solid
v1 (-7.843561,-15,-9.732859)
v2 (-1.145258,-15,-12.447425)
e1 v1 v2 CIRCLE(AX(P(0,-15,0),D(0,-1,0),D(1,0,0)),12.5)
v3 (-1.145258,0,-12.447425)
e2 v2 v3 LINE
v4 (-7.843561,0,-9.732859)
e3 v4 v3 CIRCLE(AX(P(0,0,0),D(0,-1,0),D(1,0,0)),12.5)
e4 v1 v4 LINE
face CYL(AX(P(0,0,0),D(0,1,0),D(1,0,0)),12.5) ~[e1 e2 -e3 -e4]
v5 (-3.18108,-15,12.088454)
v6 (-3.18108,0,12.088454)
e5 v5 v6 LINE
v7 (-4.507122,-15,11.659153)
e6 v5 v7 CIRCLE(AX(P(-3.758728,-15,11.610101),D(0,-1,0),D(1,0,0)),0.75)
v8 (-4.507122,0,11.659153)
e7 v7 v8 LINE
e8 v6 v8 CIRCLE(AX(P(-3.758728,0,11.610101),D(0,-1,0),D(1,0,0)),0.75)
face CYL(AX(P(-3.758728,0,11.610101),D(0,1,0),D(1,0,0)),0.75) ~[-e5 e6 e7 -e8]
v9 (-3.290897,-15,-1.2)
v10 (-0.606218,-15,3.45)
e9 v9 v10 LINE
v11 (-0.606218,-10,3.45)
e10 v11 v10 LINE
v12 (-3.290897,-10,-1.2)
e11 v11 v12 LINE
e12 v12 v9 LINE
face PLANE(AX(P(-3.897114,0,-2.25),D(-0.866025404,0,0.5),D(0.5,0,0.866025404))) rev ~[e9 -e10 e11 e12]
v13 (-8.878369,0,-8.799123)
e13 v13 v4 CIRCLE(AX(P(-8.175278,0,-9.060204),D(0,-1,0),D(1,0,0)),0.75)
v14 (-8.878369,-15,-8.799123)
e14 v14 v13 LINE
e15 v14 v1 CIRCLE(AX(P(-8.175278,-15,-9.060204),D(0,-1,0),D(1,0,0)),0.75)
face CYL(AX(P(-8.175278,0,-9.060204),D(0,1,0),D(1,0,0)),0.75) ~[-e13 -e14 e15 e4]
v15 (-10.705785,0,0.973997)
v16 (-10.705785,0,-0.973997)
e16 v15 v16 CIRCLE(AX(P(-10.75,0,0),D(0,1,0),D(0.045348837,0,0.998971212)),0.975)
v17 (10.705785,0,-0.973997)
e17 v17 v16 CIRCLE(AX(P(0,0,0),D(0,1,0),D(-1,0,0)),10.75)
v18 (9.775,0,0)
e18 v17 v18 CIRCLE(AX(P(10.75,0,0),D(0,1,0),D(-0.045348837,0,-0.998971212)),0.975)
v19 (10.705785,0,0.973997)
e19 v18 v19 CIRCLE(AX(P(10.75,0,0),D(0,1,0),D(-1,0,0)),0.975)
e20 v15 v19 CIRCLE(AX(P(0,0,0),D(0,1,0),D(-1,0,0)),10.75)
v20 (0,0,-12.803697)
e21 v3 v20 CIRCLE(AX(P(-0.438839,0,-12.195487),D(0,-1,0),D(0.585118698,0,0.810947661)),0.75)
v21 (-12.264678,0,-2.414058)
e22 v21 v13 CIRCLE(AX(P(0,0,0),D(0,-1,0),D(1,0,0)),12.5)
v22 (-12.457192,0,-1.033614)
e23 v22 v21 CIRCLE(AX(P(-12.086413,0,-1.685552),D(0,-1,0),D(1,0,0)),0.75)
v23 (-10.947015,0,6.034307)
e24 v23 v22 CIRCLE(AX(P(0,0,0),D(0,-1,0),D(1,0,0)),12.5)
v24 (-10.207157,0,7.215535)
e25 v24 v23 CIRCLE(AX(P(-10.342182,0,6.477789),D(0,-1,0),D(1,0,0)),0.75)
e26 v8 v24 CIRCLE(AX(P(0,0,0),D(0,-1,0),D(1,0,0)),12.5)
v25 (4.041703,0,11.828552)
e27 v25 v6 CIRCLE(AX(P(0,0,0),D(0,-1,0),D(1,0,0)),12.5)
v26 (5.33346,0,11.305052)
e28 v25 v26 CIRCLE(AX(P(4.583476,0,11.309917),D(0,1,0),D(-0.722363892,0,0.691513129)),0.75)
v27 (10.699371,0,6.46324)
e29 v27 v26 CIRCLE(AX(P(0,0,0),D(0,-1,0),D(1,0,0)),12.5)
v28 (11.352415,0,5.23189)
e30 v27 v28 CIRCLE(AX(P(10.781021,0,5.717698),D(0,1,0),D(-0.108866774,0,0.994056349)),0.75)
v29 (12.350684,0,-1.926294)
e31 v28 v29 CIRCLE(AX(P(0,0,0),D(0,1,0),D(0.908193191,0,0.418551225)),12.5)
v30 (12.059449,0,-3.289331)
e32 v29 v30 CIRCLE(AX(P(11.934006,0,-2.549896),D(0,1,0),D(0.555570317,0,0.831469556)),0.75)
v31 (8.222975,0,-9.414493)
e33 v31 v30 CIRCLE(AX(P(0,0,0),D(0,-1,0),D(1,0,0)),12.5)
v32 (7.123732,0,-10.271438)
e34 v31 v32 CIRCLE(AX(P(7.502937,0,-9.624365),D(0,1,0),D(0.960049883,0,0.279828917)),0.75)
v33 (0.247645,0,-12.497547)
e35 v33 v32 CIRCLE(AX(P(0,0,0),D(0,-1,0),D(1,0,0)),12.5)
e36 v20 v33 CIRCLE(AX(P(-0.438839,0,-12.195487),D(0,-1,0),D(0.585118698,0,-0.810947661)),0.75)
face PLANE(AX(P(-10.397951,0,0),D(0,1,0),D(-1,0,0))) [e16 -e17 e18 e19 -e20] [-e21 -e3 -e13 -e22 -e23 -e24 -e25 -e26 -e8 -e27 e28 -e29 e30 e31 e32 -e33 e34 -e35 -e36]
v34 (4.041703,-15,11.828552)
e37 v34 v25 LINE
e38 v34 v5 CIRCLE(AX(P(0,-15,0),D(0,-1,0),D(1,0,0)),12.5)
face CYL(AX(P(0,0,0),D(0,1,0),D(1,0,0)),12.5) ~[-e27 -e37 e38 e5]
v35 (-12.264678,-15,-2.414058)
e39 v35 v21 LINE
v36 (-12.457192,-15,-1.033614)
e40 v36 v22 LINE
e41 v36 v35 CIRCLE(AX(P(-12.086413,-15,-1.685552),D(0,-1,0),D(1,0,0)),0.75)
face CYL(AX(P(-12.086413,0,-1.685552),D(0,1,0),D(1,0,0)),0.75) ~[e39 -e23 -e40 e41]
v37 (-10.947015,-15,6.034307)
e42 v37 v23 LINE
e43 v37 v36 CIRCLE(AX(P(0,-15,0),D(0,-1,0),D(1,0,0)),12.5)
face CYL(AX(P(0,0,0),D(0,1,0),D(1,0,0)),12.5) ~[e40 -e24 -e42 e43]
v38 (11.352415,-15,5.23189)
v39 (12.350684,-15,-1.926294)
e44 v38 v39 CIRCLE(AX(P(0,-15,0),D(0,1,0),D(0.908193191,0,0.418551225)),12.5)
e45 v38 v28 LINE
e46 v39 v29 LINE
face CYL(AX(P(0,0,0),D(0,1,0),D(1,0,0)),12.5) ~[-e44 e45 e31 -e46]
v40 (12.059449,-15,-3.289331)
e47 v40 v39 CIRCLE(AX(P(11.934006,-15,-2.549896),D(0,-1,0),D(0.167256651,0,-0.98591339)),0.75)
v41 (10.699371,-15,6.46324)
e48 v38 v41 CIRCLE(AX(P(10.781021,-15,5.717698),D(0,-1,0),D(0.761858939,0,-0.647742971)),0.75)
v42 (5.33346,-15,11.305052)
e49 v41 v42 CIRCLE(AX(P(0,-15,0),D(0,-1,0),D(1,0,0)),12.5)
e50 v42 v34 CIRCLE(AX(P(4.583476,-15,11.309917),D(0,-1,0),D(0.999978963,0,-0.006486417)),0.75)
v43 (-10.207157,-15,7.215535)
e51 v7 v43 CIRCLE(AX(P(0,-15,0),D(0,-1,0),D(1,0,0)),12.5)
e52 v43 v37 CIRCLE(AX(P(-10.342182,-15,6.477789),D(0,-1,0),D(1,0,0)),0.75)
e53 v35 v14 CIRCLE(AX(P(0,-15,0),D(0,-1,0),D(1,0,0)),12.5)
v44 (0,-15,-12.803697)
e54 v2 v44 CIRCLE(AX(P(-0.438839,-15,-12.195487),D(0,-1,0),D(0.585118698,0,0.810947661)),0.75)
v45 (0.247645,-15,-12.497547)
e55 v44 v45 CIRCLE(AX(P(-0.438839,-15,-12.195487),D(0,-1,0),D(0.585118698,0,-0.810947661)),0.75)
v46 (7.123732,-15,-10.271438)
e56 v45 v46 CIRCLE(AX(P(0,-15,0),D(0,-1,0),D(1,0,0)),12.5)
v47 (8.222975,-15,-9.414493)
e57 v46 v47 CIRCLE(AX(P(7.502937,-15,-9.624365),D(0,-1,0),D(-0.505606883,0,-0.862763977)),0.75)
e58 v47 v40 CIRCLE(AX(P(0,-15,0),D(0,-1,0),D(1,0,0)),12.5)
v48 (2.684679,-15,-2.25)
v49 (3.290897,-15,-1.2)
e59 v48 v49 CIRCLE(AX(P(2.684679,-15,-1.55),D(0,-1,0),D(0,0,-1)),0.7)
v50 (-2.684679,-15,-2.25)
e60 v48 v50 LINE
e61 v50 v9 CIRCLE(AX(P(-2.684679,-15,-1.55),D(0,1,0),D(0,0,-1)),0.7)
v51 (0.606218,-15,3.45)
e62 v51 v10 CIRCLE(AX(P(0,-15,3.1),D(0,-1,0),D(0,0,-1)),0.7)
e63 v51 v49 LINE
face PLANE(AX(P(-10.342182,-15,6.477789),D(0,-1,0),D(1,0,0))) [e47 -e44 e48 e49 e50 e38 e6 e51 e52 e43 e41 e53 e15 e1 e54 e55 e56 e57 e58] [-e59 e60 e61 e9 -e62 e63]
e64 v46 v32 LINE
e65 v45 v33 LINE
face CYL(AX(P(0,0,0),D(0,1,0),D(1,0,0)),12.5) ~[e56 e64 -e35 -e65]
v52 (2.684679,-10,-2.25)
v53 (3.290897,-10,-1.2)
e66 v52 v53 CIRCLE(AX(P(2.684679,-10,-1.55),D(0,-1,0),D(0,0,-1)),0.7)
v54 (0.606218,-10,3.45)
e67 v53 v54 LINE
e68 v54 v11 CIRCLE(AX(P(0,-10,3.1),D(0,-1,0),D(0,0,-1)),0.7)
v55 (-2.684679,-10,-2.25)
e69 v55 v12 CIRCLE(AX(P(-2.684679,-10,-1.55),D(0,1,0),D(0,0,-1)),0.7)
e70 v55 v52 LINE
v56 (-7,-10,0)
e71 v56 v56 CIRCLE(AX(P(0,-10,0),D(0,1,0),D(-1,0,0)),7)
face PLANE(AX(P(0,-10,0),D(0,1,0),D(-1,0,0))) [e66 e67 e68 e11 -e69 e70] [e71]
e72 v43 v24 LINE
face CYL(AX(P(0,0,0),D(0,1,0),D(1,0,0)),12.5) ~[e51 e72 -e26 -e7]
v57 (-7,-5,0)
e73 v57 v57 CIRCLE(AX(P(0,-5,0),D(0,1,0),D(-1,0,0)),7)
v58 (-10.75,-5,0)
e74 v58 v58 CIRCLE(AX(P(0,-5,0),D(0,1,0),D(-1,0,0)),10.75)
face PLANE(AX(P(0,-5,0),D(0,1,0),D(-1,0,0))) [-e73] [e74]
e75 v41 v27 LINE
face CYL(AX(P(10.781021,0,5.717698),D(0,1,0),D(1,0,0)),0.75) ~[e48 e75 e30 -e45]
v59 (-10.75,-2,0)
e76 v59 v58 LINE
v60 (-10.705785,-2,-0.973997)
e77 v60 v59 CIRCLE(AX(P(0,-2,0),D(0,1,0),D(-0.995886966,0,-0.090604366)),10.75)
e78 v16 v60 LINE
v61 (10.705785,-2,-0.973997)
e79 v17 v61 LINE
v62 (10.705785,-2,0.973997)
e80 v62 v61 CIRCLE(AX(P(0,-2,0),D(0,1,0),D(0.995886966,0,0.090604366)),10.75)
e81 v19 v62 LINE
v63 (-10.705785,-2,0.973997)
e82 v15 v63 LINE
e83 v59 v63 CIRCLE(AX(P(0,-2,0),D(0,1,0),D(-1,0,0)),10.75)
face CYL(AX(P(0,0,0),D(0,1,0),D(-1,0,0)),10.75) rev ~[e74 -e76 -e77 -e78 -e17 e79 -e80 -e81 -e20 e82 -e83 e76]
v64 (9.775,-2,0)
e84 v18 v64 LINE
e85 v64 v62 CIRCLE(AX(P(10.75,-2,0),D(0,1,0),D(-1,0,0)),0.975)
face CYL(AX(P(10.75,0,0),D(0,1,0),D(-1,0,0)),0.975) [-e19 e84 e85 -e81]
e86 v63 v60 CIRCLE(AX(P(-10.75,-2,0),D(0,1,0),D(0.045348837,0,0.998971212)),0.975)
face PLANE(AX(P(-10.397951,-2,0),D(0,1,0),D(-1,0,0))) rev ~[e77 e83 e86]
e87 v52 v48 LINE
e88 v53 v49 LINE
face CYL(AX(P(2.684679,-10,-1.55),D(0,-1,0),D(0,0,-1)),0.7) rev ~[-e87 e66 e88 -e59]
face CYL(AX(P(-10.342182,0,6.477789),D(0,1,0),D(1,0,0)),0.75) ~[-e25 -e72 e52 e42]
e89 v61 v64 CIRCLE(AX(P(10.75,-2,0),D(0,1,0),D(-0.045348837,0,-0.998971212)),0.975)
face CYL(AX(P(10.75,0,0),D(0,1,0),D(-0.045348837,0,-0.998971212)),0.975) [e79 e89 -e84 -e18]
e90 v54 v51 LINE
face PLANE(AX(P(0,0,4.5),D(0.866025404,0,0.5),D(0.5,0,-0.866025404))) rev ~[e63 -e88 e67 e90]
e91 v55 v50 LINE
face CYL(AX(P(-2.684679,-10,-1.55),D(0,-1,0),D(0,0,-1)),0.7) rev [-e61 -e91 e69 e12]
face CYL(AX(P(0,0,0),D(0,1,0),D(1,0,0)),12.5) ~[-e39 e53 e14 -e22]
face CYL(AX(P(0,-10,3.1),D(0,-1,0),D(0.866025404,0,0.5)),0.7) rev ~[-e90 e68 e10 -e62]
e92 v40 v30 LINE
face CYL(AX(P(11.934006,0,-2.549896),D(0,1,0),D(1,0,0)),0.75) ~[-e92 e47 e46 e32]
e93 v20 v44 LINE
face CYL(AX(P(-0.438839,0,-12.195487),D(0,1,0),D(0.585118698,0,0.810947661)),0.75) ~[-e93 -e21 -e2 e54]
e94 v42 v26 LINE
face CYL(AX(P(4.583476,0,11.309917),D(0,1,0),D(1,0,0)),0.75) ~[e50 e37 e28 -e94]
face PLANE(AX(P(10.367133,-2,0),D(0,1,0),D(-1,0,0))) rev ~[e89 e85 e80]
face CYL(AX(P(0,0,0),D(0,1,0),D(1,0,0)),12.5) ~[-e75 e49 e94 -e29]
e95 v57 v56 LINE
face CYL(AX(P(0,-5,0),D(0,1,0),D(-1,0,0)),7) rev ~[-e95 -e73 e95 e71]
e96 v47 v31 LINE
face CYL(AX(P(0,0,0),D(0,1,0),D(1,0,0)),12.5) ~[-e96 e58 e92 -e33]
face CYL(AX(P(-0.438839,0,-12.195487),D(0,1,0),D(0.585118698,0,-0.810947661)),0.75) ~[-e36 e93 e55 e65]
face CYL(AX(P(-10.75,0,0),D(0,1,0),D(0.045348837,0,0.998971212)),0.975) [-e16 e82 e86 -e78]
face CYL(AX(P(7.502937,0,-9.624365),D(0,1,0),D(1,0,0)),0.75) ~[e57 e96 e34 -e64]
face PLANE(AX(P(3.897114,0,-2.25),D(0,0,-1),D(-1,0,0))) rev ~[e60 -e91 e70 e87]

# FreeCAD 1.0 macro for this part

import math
import FreeCAD as App
import Part
import Sketcher

V = App.Vector
Q = App.Units.Quantity


def edges_at(feature, points):
    """Names of the edges that pass closest to the given points."""
    edges = feature.Shape.Edges
    near = lambda p: min(range(len(edges)), key=lambda i: edges[i].distToShape(Part.Vertex(*p))[0])
    return sorted({f"Edge{near(p) + 1}" for p in points})

doc = App.newDocument("Part")
params = doc.addObject("Spreadsheet::Sheet", "Params")
for row, (alias, value) in enumerate([
    ("sketch1_diameter", "25 mm"),
    ("pad1_length", "15 mm"),
    ("sketch2_diameter", "21.5 mm"),
    ("pocket1_length", "5 mm"),
    ("sketch3_diameter", "14 mm"),
    ("pocket2_length", "5 mm"),
    ("fillet_radius", "0.7 mm"),
    ("sketch4_radius", "10.75 mm"),
    ("pad2_length", "2 mm"),
    ("sketch5_diameter", "1.5 mm"),
    ("pad3_length", "15 mm"),
], start=1):
    params.set(f"A{row}", alias)
    params.set(f"B{row}", "=" + value)
    params.setAlias(f"B{row}", alias)

body = doc.addObject("PartDesign::Body", "Body")

# Sketch on XZ plane
sketch1 = doc.addObject("Sketcher::SketchObject", "Sketch")
body.addObject(sketch1)
sketch1.AttachmentSupport = (doc.XZ_Plane, [""])
sketch1.MapMode = "FlatFace"
sketch1.addGeometry([
    Part.Circle(V(0, 0, 0), V(0, 0, 1), 12),
    Part.LineSegment(V(4, -2, 0), V(-4, -2, 0)),
    Part.LineSegment(V(-4, -2, 0), V(0, 4, 0)),
    Part.LineSegment(V(0, 4, 0), V(4, -2, 0)),
], False)
sketch1.addConstraint([
    Sketcher.Constraint("Coincident", 1, 2, 2, 1),
    Sketcher.Constraint("Coincident", 2, 2, 3, 1),
    Sketcher.Constraint("Coincident", 3, 2, 1, 1),
    Sketcher.Constraint("Horizontal", 1),
    Sketcher.Constraint("Coincident", 0, 3, -1, 1),
    Sketcher.Constraint("PointOnObject", 2, 2, -2),
    Sketcher.Constraint("Equal", 2, 3),
    Sketcher.Constraint("Diameter", 0, 25.0),
    Sketcher.Constraint("Angle", 2, Q("60 deg")),
    Sketcher.Constraint("DistanceY", -1, 1, 2, 2, 4.5),
    Sketcher.Constraint("DistanceY", 1, 2, -1, 1, 2.25),
])
sketch1.setExpression("Constraints[7]", "Params.sketch1_diameter")
pad1 = doc.addObject("PartDesign::Pad", "Pad")
body.addObject(pad1)
pad1.Profile = sketch1
pad1.setExpression("Length", "Params.pad1_length")

# Sketch on XZ plane
sketch2 = doc.addObject("Sketcher::SketchObject", "Sketch001")
body.addObject(sketch2)
sketch2.AttachmentSupport = (doc.XZ_Plane, [""])
sketch2.MapMode = "FlatFace"
sketch2.addGeometry([
    Part.Circle(V(0, 0, 0), V(0, 0, 1), 11),
    Part.LineSegment(V(-4, -2, 0), V(4, -2, 0)),
    Part.LineSegment(V(4, -2, 0), V(0, 4, 0)),
    Part.LineSegment(V(0, 4, 0), V(-4, -2, 0)),
], False)
sketch2.addConstraint([
    Sketcher.Constraint("Coincident", 1, 2, 2, 1),
    Sketcher.Constraint("Coincident", 2, 2, 3, 1),
    Sketcher.Constraint("Coincident", 3, 2, 1, 1),
    Sketcher.Constraint("Horizontal", 1),
    Sketcher.Constraint("Coincident", 0, 3, -1, 1),
    Sketcher.Constraint("PointOnObject", 2, 2, -2),
    Sketcher.Constraint("Equal", 2, 3),
    Sketcher.Constraint("Diameter", 0, 21.5),
    Sketcher.Constraint("Angle", 2, Q("120 deg")),
    Sketcher.Constraint("DistanceY", -1, 1, 2, 2, 4.5),
    Sketcher.Constraint("DistanceY", 1, 2, -1, 1, 2.25),
])
sketch2.setExpression("Constraints[7]", "Params.sketch2_diameter")
pocket1 = doc.addObject("PartDesign::Pocket", "Pocket")
body.addObject(pocket1)
pocket1.Profile = sketch2
pocket1.setExpression("Length", "Params.pocket1_length")
pocket1.Reversed = True

# Sketch on XZ plane
sketch3 = doc.addObject("Sketcher::SketchObject", "Sketch002")
body.addObject(sketch3)
sketch3.AttachmentSupport = (doc.XZ_Plane, [""])
sketch3.MapMode = "FlatFace"
sketch3.AttachmentOffset = App.Placement(V(0, 0, 5), App.Rotation())
sketch3.addGeometry(Part.Circle(V(0, 0, 0), V(0, 0, 1), 7), False)
sketch3.addConstraint([
    Sketcher.Constraint("Coincident", 0, 3, -1, 1),
    Sketcher.Constraint("Diameter", 0, 14.0),
])
sketch3.setExpression("Constraints[1]", "Params.sketch3_diameter")
pocket2 = doc.addObject("PartDesign::Pocket", "Pocket001")
body.addObject(pocket2)
pocket2.Profile = sketch3
pocket2.setExpression("Length", "Params.pocket2_length")
pocket2.Reversed = True
doc.recompute()

fillet = doc.addObject("PartDesign::Fillet", "Fillet")
body.addObject(fillet)
fillet.Base = (pocket2, edges_at(pocket2, [(0, -12.5, 4.5), (-3.897, -12.5, -2.25), (3.897, -12.5, -2.25)]))
fillet.setExpression("Radius", "Params.fillet_radius")

# Sketch on XZ plane
sketch4 = doc.addObject("Sketcher::SketchObject", "Sketch003")
body.addObject(sketch4)
sketch4.AttachmentSupport = (doc.XZ_Plane, [""])
sketch4.MapMode = "FlatFace"
sketch4.addGeometry([
    Part.ArcOfCircle(Part.Circle(V(10.8, 0, 0), V(0, 0, 1), 1), math.radians(180), math.radians(267)),  # 0
    Part.ArcOfCircle(Part.Circle(V(10.8, 0, 0), V(0, 0, 1), 1), math.radians(93), math.radians(180)),  # 1
    Part.ArcOfCircle(Part.Circle(V(0, 0, 0), V(0, 0, 1), 10.7), math.radians(-5.2), math.radians(5.2)),  # 2
    Part.ArcOfCircle(Part.Circle(V(0, 0, 0), V(0, 0, 1), 10.7), math.radians(174.8), math.radians(180)),  # 3
    Part.ArcOfCircle(Part.Circle(V(-10.8, 0, 0), V(0, 0, 1), 1), math.radians(-87), math.radians(87)),  # 4
    Part.ArcOfCircle(Part.Circle(V(0, 0, 0), V(0, 0, 1), 10.7), math.radians(180), math.radians(185.2)),  # 5
], False)
sketch4.addConstraint([
    Sketcher.Constraint("Tangent", 0, 1, 1, 2),
    Sketcher.Constraint("Coincident", 1, 1, 2, 2),
    Sketcher.Constraint("Coincident", 2, 1, 0, 2),
    Sketcher.Constraint("Coincident", 3, 1, 4, 2),
    Sketcher.Constraint("Coincident", 4, 1, 5, 2),
    Sketcher.Constraint("Tangent", 5, 1, 3, 2),
    Sketcher.Constraint("Coincident", 2, 3, -1, 1),
    Sketcher.Constraint("Coincident", 3, 3, -1, 1),
    Sketcher.Constraint("Coincident", 5, 1, 4, 3),
    Sketcher.Constraint("Equal", 0, 1),
    Sketcher.Constraint("Equal", 2, 3),
    Sketcher.Constraint("Equal", 1, 4),
    Sketcher.Constraint("Equal", 3, 5),
    Sketcher.Constraint("Symmetric", 0, 3, 4, 3, -1, 1),
    Sketcher.Constraint("PointOnObject", 0, 3, -1),
    Sketcher.Constraint("PointOnObject", 0, 1, -1),
    Sketcher.Constraint("Radius", 2, 10.75),
    Sketcher.Constraint("Radius", 0, 0.975),
])
sketch4.setExpression("Constraints[16]", "Params.sketch4_radius")
pad2 = doc.addObject("PartDesign::Pad", "Pad001")
body.addObject(pad2)
pad2.Profile = sketch4
pad2.setExpression("Length", "Params.pad2_length")

# Sketch on XZ plane
sketch5 = doc.addObject("Sketcher::SketchObject", "Sketch004")
body.addObject(sketch5)
sketch5.AttachmentSupport = (doc.XZ_Plane, [""])
sketch5.MapMode = "FlatFace"
sketch5.addGeometry([
    Part.Circle(V(-10.3, 6.5, 0), V(0, 0, 1), 0.8),  # 0
    Part.ArcOfCircle(Part.Circle(V(-0.4, -12.2, 0), V(0, 0, 1), 0.8), math.radians(0), math.radians(54)),  # 1
    Part.ArcOfCircle(Part.Circle(V(-0.4, -12.2, 0), V(0, 0, 1), 0.8), math.radians(54), math.radians(306)),  # 2
    Part.ArcOfCircle(Part.Circle(V(-0.4, -12.2, 0), V(0, 0, 1), 0.8), math.radians(-54), math.radians(0)),  # 3
    Part.Circle(V(-12.1, -1.7, 0), V(0, 0, 1), 0.8),  # 4
    Part.Circle(V(-8.2, -9.1, 0), V(0, 0, 1), 0.8),  # 5
    Part.Circle(V(7.5, -9.6, 0), V(0, 0, 1), 0.8),  # 6
    Part.Circle(V(11.9, -2.5, 0), V(0, 0, 1), 0.8),  # 7
    Part.Circle(V(10.8, 5.7, 0), V(0, 0, 1), 0.8),  # 8
    Part.Circle(V(4.6, 11.3, 0), V(0, 0, 1), 0.8),  # 9
    Part.Circle(V(-3.8, 11.6, 0), V(0, 0, 1), 0.8),  # 10
], False)
sketch5.addConstraint([
    Sketcher.Constraint("Tangent", 1, 2, 2, 1),
    Sketcher.Constraint("Tangent", 2, 2, 3, 1),
    Sketcher.Constraint("Tangent", 3, 2, 1, 1),
    Sketcher.Constraint("Equal", 0, 1),
    Sketcher.Constraint("Equal", 3, 4),
    Sketcher.Constraint("Equal", 4, 5),
    Sketcher.Constraint("Equal", 5, 6),
    Sketcher.Constraint("Equal", 6, 7),
    Sketcher.Constraint("Equal", 7, 8),
    Sketcher.Constraint("Equal", 8, 9),
    Sketcher.Constraint("Equal", 9, 10),
    Sketcher.Constraint("PointOnObject", 1, 2, -2),
    Sketcher.Constraint("PointOnObject", 2, 2, -2),
    Sketcher.Constraint("Horizontal", 2, 3, 3, 2),
    Sketcher.Constraint("Diameter", 0, 1.5),
    Sketcher.Constraint("DistanceY", -1, 1, 10, 3, 11.610101),
    Sketcher.Constraint("DistanceX", 0, 3, -1, 1, 10.342182),
    Sketcher.Constraint("DistanceY", -1, 1, 0, 3, 6.477789),
    Sketcher.Constraint("DistanceX", 1, 3, -1, 1, 0.438839),
    Sketcher.Constraint("DistanceY", 4, 3, -1, 1, 1.685552),
    Sketcher.Constraint("DistanceX", -1, 1, 8, 3, 10.781021),
    Sketcher.Constraint("DistanceX", 10, 3, -1, 1, 3.758728),
    Sketcher.Constraint("DistanceX", 4, 3, 0, 3, 1.744232),
    Sketcher.Constraint("DistanceX", 5, 3, 1, 3, 7.736439),
    Sketcher.Constraint("DistanceY", 1, 3, 6, 3, 2.571122),
    Sketcher.Constraint("DistanceY", 6, 3, 5, 3, 0.564161),
    Sketcher.Constraint("DistanceX", 4, 3, 6, 3, 19.589351),
    Sketcher.Constraint("DistanceX", 6, 3, 7, 3, 4.431069),
    Sketcher.Constraint("DistanceY", 6, 3, 7, 3, 7.074469),
    Sketcher.Constraint("DistanceY", 8, 3, 9, 3, 5.592219),
    Sketcher.Constraint("DistanceX", 9, 3, 7, 3, 7.35053),
    Sketcher.Constraint("DistanceY", 4, 3, 9, 3, 12.995469),
    Sketcher.Constraint("DistanceY", 6, 3, 9, 3, 20.934282),
])
sketch5.setExpression("Constraints[14]", "Params.sketch5_diameter")
pad3 = doc.addObject("PartDesign::Pad", "Pad002")
body.addObject(pad3)
pad3.Profile = sketch5
pad3.setExpression("Length", "Params.pad3_length")

doc.recompute()
